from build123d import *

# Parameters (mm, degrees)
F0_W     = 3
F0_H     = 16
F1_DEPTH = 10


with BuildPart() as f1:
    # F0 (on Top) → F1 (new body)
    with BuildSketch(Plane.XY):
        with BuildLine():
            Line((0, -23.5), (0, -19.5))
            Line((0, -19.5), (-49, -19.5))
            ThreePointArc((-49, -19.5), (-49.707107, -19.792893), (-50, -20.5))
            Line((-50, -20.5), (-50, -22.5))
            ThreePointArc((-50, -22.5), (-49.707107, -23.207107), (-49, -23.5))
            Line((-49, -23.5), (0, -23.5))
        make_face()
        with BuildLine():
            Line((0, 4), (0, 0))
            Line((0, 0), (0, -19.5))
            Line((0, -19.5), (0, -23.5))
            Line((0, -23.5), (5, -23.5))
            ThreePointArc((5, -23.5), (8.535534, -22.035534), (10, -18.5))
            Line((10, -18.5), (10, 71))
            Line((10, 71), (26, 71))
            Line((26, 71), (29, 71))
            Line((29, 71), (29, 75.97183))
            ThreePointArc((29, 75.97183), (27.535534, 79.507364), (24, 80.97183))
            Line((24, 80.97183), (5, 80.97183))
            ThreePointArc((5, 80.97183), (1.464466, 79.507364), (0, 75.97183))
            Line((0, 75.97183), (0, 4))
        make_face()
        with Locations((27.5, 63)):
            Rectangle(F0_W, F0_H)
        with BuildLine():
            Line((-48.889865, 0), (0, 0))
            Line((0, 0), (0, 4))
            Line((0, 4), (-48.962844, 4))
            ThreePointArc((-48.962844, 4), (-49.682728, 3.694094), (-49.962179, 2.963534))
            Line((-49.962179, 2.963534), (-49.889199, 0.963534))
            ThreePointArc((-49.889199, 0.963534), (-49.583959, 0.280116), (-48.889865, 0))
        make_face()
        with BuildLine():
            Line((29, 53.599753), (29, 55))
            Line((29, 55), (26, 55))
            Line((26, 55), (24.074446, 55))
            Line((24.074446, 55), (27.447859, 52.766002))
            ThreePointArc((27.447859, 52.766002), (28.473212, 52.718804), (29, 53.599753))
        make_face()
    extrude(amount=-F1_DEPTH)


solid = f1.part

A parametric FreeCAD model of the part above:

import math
import FreeCAD as App
import Part
import Sketcher

V = App.Vector

doc = App.newDocument("Part")
body = doc.addObject("PartDesign::Body", "Body")

# Sketch on XY plane
sketch1 = body.newObject("Sketcher::SketchObject", "Sketch")
sketch1.AttachmentSupport = (doc.getObject("XY_Plane"), [""])
sketch1.MapMode = "FlatFace"
sketch1.addGeometry([
    Part.LineSegment(V(0, -19.5, 0), V(-49, -19.5, 0)),  # 0
    Part.ArcOfCircle(Part.Circle(V(-49, -20.5, 0), V(0, 0, 1), 1), math.radians(90), math.radians(180)),  # 1
    Part.LineSegment(V(-50, -20.5, 0), V(-50, -22.5, 0)),  # 2
    Part.ArcOfCircle(Part.Circle(V(-49, -22.5, 0), V(0, 0, 1), 1), math.radians(180), math.radians(270)),  # 3
    Part.LineSegment(V(-49, -23.5, 0), V(5, -23.5, 0)),  # 4
    Part.ArcOfCircle(Part.Circle(V(5, -18.5, 0), V(0, 0, 1), 5), math.radians(-90), math.radians(0)),  # 5
    Part.LineSegment(V(10, -18.5, 0), V(10, 71, 0)),  # 6
    Part.LineSegment(V(10, 71, 0), V(26, 71, 0)),  # 7
    Part.LineSegment(V(26, 71, 0), V(26, 55, 0)),  # 8
    Part.LineSegment(V(26, 55, 0), V(24.1, 55, 0)),  # 9
    Part.LineSegment(V(24.1, 55, 0), V(27.4, 52.8, 0)),  # 10
    Part.ArcOfCircle(Part.Circle(V(28, 53.6, 0), V(0, 0, 1), 1), math.radians(-124), math.radians(0)),  # 11
    Part.LineSegment(V(29, 53.6, 0), V(29, 76, 0)),  # 12
    Part.ArcOfCircle(Part.Circle(V(24, 76, 0), V(0, 0, 1), 5), math.radians(0), math.radians(90)),  # 13
    Part.LineSegment(V(24, 81, 0), V(5, 81, 0)),  # 14
    Part.ArcOfCircle(Part.Circle(V(5, 76, 0), V(0, 0, 1), 5), math.radians(90), math.radians(180)),  # 15
    Part.LineSegment(V(0, 76, 0), V(0, 4, 0)),  # 16
    Part.LineSegment(V(0, 4, 0), V(-49, 4, 0)),  # 17
    Part.ArcOfCircle(Part.Circle(V(-49, 3, 0), V(0, 0, 1), 1), math.radians(90), math.radians(182)),  # 18
    Part.LineSegment(V(-50, 3, 0), V(-49.9, 1, 0)),  # 19
    Part.ArcOfCircle(Part.Circle(V(-48.9, 1, 0), V(0, 0, 1), 1), math.radians(-178), math.radians(-90)),  # 20
    Part.LineSegment(V(-48.9, 0, 0), V(0, 0, 0)),  # 21
    Part.LineSegment(V(0, 0, 0), V(0, -19.5, 0)),  # 22
], False)
sketch1.addConstraint([
    Sketcher.Constraint("Tangent", 0, 2, 1, 1),
    Sketcher.Constraint("Tangent", 1, 2, 2, 1),
    Sketcher.Constraint("Tangent", 2, 2, 3, 1),
    Sketcher.Constraint("Tangent", 3, 2, 4, 1),
    Sketcher.Constraint("Tangent", 4, 2, 5, 1),
    Sketcher.Constraint("Tangent", 5, 2, 6, 1),
    Sketcher.Constraint("Coincident", 6, 2, 7, 1),
    Sketcher.Constraint("Coincident", 7, 2, 8, 1),
    Sketcher.Constraint("Coincident", 8, 2, 9, 1),
    Sketcher.Constraint("Coincident", 9, 2, 10, 1),
    Sketcher.Constraint("Tangent", 10, 2, 11, 1),
    Sketcher.Constraint("Tangent", 11, 2, 12, 1),
    Sketcher.Constraint("Tangent", 12, 2, 13, 1),
    Sketcher.Constraint("Tangent", 13, 2, 14, 1),
    Sketcher.Constraint("Tangent", 14, 2, 15, 1),
    Sketcher.Constraint("Tangent", 15, 2, 16, 1),
    Sketcher.Constraint("Coincident", 16, 2, 17, 1),
    Sketcher.Constraint("Tangent", 17, 2, 18, 1),
    Sketcher.Constraint("Tangent", 18, 2, 19, 1),
    Sketcher.Constraint("Tangent", 19, 2, 20, 1),
    Sketcher.Constraint("Tangent", 20, 2, 21, 1),
    Sketcher.Constraint("Coincident", 21, 2, 22, 1),
    Sketcher.Constraint("Coincident", 22, 2, 0, 1),
    Sketcher.Constraint("Horizontal", 0),
    Sketcher.Constraint("Vertical", 2),
    Sketcher.Constraint("Horizontal", 4),
    Sketcher.Constraint("Vertical", 6),
    Sketcher.Constraint("Horizontal", 7),
    Sketcher.Constraint("Vertical", 8),
    Sketcher.Constraint("Horizontal", 9),
    Sketcher.Constraint("Vertical", 12),
    Sketcher.Constraint("Horizontal", 14),
    Sketcher.Constraint("Vertical", 16),
    Sketcher.Constraint("Horizontal", 17),
    Sketcher.Constraint("Horizontal", 21),
    Sketcher.Constraint("Vertical", 22),
    Sketcher.Constraint("Coincident", 21, 2, -1, 1),
    Sketcher.Constraint("Equal", 1, 3),
    Sketcher.Constraint("Equal", 3, 11),
    Sketcher.Constraint("Equal", 5, 13),
    Sketcher.Constraint("Equal", 13, 15),
    Sketcher.Constraint("Equal", 11, 18),
    Sketcher.Constraint("Equal", 18, 20),
    Sketcher.Constraint("PointOnObject", 15, 2, -2),
    Sketcher.Constraint("Vertical", 5, 3, 15, 3),
    Sketcher.Constraint("Equal", 7, 8),
    Sketcher.Constraint("Radius", 1, 0.999999),
    Sketcher.Constraint("Radius", 5, 5.0),
    Sketcher.Constraint("DistanceX", 0, 2, 0, 1, 49.0),
    Sketcher.Constraint("DistanceX", 7, 1, 7, 2, 16.0),
    Sketcher.Constraint("DistanceX", 14, 2, 14, 1, 19.0),
    Sketcher.Constraint("DistanceY", 2, 2, 2, 1, 2.0),
    Sketcher.Constraint("DistanceY", 6, 1, 6, 2, 89.5),
    Sketcher.Constraint("DistanceY", 22, 2, 22, 1, 19.5),
    Sketcher.Constraint("DistanceY", -1, 1, 18, 3, 2.999999),
    Sketcher.Constraint("DistanceY", 16, 2, 16, 1, 71.97183),
    Sketcher.Constraint("DistanceX", 19, 2, -1, 1, 49.889199),
    Sketcher.Constraint("Distance", 19, 2.001331),
    Sketcher.Constraint("DistanceX", 9, 2, 9, 1, 1.925554),
    Sketcher.Constraint("DistanceY", 12, 1, 12, 2, 22.372077),
])
pad1 = body.newObject("PartDesign::Pad", "Pad")
pad1.Profile = sketch1
pad1.Length = 10
pad1.Reversed = True

doc.recompute()
